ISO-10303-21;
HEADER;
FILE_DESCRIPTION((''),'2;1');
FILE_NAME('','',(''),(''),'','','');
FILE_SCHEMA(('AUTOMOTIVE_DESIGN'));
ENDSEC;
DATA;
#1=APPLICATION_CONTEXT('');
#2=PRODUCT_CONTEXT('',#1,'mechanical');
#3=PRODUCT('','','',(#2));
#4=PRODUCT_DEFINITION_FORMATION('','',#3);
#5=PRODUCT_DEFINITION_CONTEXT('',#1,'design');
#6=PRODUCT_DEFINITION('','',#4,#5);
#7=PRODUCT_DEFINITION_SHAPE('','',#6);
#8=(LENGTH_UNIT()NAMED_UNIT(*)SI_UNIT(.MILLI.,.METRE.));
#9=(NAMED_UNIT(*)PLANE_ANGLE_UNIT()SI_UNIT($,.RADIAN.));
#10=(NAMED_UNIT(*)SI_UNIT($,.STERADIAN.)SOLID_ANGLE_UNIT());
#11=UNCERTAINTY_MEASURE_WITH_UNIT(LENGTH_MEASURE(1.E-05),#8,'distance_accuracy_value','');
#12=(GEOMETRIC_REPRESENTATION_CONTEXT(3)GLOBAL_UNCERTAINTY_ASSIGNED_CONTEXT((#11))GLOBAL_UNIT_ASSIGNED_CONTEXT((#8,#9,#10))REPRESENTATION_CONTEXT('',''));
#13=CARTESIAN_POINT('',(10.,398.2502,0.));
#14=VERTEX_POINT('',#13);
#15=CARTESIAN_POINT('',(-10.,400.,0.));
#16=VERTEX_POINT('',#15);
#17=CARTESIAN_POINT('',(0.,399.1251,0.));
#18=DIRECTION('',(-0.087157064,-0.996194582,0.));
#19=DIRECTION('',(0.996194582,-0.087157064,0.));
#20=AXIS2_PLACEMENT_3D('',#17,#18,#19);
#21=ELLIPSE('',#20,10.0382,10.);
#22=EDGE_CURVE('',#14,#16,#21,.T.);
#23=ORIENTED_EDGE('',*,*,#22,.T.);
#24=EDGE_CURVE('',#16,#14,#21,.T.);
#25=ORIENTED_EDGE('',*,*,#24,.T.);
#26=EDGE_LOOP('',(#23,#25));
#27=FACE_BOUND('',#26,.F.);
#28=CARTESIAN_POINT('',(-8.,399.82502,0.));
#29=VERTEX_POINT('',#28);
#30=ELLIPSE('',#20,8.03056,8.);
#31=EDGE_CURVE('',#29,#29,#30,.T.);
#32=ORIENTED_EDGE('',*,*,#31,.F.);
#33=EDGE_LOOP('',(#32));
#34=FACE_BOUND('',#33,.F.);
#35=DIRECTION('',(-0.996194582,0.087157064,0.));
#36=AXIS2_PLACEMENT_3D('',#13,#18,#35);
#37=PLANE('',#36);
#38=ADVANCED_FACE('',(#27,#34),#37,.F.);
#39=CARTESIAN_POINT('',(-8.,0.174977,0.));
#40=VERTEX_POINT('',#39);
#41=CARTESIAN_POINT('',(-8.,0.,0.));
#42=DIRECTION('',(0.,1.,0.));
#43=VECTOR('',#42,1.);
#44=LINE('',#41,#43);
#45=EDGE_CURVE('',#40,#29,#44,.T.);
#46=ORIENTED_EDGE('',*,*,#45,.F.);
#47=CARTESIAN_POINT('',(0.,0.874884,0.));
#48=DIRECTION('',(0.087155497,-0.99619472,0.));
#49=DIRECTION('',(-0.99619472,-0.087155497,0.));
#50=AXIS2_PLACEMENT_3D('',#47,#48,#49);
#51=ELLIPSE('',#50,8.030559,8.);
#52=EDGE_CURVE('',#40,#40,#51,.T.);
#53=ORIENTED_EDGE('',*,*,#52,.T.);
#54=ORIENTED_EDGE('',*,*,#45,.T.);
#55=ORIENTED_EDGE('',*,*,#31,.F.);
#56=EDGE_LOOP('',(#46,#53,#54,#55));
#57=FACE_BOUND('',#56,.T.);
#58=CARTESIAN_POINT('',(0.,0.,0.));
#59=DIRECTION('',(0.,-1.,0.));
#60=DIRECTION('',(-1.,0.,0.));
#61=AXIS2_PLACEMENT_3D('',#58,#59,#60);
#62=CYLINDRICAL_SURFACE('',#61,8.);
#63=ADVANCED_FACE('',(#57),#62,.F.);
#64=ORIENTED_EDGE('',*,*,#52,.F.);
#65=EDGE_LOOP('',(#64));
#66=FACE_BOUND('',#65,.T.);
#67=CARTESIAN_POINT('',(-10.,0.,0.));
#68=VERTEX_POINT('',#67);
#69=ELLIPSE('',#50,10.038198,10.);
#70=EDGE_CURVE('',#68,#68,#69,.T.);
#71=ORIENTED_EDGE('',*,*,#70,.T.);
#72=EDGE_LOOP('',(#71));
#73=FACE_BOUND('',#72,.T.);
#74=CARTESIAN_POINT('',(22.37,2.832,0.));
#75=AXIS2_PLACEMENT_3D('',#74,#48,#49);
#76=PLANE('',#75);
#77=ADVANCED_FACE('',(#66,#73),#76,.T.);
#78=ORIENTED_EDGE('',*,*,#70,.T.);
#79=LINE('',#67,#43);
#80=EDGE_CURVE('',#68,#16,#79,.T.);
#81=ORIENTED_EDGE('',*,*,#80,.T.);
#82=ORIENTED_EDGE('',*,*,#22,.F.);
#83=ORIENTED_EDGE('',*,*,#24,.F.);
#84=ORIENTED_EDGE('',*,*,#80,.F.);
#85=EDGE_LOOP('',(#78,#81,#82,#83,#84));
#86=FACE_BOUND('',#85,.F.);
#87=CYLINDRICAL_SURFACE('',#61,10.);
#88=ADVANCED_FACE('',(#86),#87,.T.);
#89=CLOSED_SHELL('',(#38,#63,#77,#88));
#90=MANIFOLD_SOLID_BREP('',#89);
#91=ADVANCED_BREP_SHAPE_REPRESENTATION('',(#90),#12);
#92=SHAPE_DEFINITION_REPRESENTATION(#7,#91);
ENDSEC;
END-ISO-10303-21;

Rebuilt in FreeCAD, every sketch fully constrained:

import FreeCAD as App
import Part
import Sketcher
Q = App.Units.Quantity


def faces_at(feature, points):
    """Names of the faces that lie closest to the given points."""
    faces = feature.Shape.Faces
    near = lambda p: min(range(len(faces)), key=lambda i: faces[i].distToShape(Part.Vertex(*p))[0])
    return sorted({f"Face{near(p) + 1}" for p in points})

doc = App.newDocument("Part")
body = doc.addObject("PartDesign::Body", "Body")

sketch1 = body.newObject("Sketcher::SketchObject", "Sketch")
sketch1.AttachmentSupport = (doc.getObject("XZ_Plane"), [""])
sketch1.MapMode = "FlatFace"
sketch1.addGeometry(Part.Circle(App.Vector(0, 0, 0), App.Vector(0, 0, 1), 10), False)
sketch1.addConstraint(Sketcher.Constraint("Coincident", 0, 3, -1, 1))
sketch1.addConstraint(Sketcher.Constraint("Diameter", 0, Q("20 mm")))
pad1 = body.newObject("PartDesign::Pad", "Pad")
pad1.Profile = sketch1
pad1.Length = 400
pad1.Reversed = True
doc.recompute()

thickness = body.newObject("PartDesign::Thickness", "Thickness")
thickness.Base = (pad1, faces_at(pad1, [(1.182, 0, 3.117), (1.182, 400, 3.117)]))
thickness.Value = 2
thickness.Reversed = True
thickness.Join = "Intersection"

sketch2 = body.newObject("Sketcher::SketchObject", "Sketch001")
sketch2.AttachmentSupport = (doc.getObject("XY_Plane"), [""])
sketch2.MapMode = "FlatFace"
sketch2.addGeometry(Part.LineSegment(App.Vector(22.37, 2.832, 0), App.Vector(-10, 0, 0)), False)
sketch2.addGeometry(Part.LineSegment(App.Vector(-10, 0, 0), App.Vector(10, 0, 0)), False)
sketch2.addGeometry(Part.LineSegment(App.Vector(10, 0, 0), App.Vector(22.37, 2.832, 0)), False)
sketch2.addGeometry(Part.LineSegment(App.Vector(10, 400, 0), App.Vector(-10, 400, 0)), False)
sketch2.addGeometry(Part.LineSegment(App.Vector(-10, 400, 0), App.Vector(10, 398.2502, 0)), False)
sketch2.addGeometry(Part.LineSegment(App.Vector(10, 398.2502, 0), App.Vector(10, 400, 0)), False)
sketch2.addConstraint(Sketcher.Constraint("Coincident", 0, 2, 1, 1))
sketch2.addConstraint(Sketcher.Constraint("Coincident", 1, 2, 2, 1))
sketch2.addConstraint(Sketcher.Constraint("Coincident", 2, 2, 0, 1))
sketch2.addConstraint(Sketcher.Constraint("Coincident", 3, 2, 4, 1))
sketch2.addConstraint(Sketcher.Constraint("Coincident", 4, 2, 5, 1))
sketch2.addConstraint(Sketcher.Constraint("Coincident", 5, 2, 3, 1))
sketch2.addConstraint(Sketcher.Constraint("Horizontal", 1))
sketch2.addConstraint(Sketcher.Constraint("Horizontal", 3))
sketch2.addConstraint(Sketcher.Constraint("Vertical", 5))
sketch2.addConstraint(Sketcher.Constraint("Symmetric", 0, 2, 1, 2, -1, 1))
sketch2.addConstraint(Sketcher.Constraint("Vertical", 0, 2, 3, 2))
sketch2.addConstraint(Sketcher.Constraint("Vertical", 1, 2, 4, 2))
sketch2.addConstraint(Sketcher.Constraint("Angle", 4, Q("-5 deg")))
sketch2.addConstraint(Sketcher.Constraint("DistanceX", 1, 1, 1, 2, Q("20 mm")))
sketch2.addConstraint(Sketcher.Constraint("Angle", 0, Q("-175 deg")))
sketch2.addConstraint(Sketcher.Constraint("DistanceY", -1, 1, 3, 2, Q("400 mm")))
sketch2.addConstraint(Sketcher.Constraint("Distance", 2, Q("12.69 mm")))
pocket1 = body.newObject("PartDesign::Pocket", "Pocket")
pocket1.Profile = sketch2
pocket1.Length = 32
pocket1.Midplane = True

doc.recompute()
